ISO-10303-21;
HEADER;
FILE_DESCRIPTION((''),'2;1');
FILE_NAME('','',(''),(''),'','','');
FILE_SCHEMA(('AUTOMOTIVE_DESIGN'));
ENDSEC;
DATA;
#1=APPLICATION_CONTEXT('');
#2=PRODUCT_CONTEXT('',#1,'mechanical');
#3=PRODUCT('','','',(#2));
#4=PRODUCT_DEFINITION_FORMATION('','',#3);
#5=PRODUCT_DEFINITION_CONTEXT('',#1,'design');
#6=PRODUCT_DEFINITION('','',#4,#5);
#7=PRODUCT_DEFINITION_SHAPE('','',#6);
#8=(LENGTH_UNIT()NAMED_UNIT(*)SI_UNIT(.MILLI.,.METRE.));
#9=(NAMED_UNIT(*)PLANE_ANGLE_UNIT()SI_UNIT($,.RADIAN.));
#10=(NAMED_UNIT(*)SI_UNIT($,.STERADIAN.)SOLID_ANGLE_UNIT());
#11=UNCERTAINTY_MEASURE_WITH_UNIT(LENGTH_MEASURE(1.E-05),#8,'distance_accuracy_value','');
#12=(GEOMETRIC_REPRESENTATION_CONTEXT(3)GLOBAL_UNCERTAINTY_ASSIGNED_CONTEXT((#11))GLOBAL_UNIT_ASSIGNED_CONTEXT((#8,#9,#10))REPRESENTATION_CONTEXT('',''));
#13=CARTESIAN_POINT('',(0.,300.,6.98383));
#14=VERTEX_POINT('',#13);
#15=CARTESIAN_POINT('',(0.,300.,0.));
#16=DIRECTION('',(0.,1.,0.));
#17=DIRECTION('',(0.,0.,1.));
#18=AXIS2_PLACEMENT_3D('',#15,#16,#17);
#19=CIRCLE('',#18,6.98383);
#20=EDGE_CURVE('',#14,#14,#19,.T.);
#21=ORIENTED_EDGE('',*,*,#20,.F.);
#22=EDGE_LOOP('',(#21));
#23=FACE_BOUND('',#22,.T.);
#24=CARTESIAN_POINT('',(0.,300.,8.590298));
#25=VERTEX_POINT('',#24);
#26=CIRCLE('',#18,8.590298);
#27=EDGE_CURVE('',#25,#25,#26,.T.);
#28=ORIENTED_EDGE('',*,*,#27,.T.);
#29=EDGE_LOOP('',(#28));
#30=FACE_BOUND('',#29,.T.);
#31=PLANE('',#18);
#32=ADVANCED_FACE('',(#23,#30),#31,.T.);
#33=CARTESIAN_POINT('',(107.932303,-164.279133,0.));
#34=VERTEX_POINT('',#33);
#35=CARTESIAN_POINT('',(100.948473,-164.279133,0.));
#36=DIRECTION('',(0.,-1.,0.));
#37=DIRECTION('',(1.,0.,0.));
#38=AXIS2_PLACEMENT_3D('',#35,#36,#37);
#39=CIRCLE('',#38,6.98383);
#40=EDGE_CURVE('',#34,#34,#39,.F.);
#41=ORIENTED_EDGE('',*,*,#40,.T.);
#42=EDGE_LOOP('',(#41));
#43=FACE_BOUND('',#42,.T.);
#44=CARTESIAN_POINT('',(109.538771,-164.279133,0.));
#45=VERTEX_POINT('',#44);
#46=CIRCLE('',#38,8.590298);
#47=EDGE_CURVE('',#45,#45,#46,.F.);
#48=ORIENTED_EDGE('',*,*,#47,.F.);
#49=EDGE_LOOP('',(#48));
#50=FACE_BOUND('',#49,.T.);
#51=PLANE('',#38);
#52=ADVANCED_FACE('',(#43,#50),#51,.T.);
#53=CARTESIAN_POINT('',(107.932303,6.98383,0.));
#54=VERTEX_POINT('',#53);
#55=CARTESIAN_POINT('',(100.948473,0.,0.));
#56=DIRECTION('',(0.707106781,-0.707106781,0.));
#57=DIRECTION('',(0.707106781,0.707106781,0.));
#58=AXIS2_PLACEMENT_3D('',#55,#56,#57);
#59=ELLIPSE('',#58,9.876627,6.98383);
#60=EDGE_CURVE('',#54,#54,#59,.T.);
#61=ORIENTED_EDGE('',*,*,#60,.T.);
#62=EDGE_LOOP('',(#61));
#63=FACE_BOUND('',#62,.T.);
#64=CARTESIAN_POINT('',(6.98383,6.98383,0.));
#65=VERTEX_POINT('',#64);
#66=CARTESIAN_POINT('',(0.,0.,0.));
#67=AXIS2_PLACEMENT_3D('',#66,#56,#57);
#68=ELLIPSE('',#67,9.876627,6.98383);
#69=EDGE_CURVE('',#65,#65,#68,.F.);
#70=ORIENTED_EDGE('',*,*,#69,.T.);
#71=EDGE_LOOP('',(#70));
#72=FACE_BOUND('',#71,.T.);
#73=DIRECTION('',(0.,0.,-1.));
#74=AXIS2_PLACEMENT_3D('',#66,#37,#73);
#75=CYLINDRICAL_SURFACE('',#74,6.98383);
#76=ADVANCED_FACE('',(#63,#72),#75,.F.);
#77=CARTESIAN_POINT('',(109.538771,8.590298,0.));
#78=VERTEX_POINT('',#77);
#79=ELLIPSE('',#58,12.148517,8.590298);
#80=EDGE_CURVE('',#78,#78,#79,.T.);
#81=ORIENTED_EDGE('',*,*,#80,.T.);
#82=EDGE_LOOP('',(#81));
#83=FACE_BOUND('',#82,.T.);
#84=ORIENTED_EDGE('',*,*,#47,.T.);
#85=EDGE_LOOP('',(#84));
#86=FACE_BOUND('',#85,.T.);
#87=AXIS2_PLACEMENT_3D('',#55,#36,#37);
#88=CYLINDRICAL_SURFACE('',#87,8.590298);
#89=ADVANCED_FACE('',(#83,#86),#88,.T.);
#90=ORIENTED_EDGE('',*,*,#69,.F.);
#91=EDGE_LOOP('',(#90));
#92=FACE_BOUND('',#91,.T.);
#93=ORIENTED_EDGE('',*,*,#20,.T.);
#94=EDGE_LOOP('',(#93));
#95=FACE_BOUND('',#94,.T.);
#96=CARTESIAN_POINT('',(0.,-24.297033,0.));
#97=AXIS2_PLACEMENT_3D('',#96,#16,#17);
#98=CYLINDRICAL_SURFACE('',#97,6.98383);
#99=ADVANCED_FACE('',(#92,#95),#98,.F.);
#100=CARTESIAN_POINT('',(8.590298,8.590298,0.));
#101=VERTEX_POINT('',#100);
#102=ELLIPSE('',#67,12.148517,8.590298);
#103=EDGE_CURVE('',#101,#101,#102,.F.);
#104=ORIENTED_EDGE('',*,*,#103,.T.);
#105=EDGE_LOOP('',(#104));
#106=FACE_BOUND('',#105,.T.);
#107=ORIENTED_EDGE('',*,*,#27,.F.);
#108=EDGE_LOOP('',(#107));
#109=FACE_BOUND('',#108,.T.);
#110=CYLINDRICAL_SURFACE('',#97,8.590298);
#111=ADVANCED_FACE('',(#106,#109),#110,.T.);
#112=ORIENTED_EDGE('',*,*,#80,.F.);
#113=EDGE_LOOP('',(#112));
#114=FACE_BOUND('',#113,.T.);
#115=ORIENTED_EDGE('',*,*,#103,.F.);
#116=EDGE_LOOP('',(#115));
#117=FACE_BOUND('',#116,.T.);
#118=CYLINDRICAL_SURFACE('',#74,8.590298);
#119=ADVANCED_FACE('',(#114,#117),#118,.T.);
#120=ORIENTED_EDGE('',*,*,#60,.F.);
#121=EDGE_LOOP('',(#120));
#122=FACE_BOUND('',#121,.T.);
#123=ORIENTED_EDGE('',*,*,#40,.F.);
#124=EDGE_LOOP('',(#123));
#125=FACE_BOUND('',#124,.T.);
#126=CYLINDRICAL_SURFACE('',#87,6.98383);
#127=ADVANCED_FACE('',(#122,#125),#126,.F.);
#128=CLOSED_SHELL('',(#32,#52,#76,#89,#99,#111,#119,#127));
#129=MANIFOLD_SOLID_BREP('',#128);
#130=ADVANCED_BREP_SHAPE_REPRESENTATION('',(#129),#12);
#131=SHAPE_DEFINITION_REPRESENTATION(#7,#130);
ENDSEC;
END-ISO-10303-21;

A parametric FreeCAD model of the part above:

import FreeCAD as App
import Part
import Sketcher
Q = App.Units.Quantity

doc = App.newDocument("Part")
params = doc.addObject("Spreadsheet::Sheet", "Params")
for row, (alias, value) in enumerate([
    ("sketch2_height", "300 mm"),
], start=1):
    params.set(f"A{row}", alias)
    params.set(f"B{row}", "=" + value)
    params.setAlias(f"B{row}", alias)

body = doc.addObject("PartDesign::Body", "Body")

# Sketch on XZ plane
sketch1 = body.newObject("Sketcher::SketchObject", "Sketch")
sketch1.AttachmentSupport = (doc.getObject("XZ_Plane"), [""])
sketch1.MapMode = "FlatFace"
sketch1.AttachmentOffset = App.Placement(App.Vector(0, 0, -300), App.Rotation())
sketch1.addGeometry([
    Part.Circle(App.Vector(0, 0, 0), App.Vector(0, 0, 1), 8.590298),
    Part.Circle(App.Vector(0, 0, 0), App.Vector(0, 0, 1), 6.98383),
], False)
sketch1.addConstraint([
    Sketcher.Constraint("Coincident", 0, 3, -1, 1),
    Sketcher.Constraint("Coincident", 1, 3, -1, 1),
    Sketcher.Constraint("Diameter", 1, Q("13.967659 mm")),
    Sketcher.Constraint("Diameter", 0, Q("17.180597 mm")),
])

# Sketch on XY plane
sketch2 = body.newObject("Sketcher::SketchObject", "Sketch001")
sketch2.AttachmentSupport = (doc.getObject("XY_Plane"), [""])
sketch2.MapMode = "FlatFace"
sketch2.addGeometry([
    Part.LineSegment(App.Vector(0, 300, 0), App.Vector(0, 0, 0)),
    Part.LineSegment(App.Vector(0, 0, 0), App.Vector(100.948473, 0, 0)),
    Part.LineSegment(App.Vector(100.948473, 0, 0), App.Vector(100.948473, -164.279133, 0)),
], False)
sketch2.addConstraint([
    Sketcher.Constraint("Coincident", 0, 2, 1, 1),
    Sketcher.Constraint("Coincident", 1, 2, 2, 1),
    Sketcher.Constraint("Vertical", 0),
    Sketcher.Constraint("Horizontal", 1),
    Sketcher.Constraint("Vertical", 2),
    Sketcher.Constraint("Coincident", 0, 2, -1, 1),
    Sketcher.Constraint("DistanceY", 0, 2, 0, 1, Q("300 mm")),
    Sketcher.Constraint("DistanceX", 1, 1, 1, 2, Q("100.948473 mm")),
    Sketcher.Constraint("DistanceY", 2, 2, 2, 1, Q("164.279133 mm")),
])
sketch2.setExpression("Constraints[6]", "Params.sketch2_height")
doc.recompute()

additivepipe = body.newObject("PartDesign::AdditivePipe", "AdditivePipe")
additivepipe.Profile = sketch1
additivepipe.Spine = (sketch2, ["Edge1", "Edge2", "Edge3"])
additivepipe.Transition = "Right corner"

doc.recompute()
